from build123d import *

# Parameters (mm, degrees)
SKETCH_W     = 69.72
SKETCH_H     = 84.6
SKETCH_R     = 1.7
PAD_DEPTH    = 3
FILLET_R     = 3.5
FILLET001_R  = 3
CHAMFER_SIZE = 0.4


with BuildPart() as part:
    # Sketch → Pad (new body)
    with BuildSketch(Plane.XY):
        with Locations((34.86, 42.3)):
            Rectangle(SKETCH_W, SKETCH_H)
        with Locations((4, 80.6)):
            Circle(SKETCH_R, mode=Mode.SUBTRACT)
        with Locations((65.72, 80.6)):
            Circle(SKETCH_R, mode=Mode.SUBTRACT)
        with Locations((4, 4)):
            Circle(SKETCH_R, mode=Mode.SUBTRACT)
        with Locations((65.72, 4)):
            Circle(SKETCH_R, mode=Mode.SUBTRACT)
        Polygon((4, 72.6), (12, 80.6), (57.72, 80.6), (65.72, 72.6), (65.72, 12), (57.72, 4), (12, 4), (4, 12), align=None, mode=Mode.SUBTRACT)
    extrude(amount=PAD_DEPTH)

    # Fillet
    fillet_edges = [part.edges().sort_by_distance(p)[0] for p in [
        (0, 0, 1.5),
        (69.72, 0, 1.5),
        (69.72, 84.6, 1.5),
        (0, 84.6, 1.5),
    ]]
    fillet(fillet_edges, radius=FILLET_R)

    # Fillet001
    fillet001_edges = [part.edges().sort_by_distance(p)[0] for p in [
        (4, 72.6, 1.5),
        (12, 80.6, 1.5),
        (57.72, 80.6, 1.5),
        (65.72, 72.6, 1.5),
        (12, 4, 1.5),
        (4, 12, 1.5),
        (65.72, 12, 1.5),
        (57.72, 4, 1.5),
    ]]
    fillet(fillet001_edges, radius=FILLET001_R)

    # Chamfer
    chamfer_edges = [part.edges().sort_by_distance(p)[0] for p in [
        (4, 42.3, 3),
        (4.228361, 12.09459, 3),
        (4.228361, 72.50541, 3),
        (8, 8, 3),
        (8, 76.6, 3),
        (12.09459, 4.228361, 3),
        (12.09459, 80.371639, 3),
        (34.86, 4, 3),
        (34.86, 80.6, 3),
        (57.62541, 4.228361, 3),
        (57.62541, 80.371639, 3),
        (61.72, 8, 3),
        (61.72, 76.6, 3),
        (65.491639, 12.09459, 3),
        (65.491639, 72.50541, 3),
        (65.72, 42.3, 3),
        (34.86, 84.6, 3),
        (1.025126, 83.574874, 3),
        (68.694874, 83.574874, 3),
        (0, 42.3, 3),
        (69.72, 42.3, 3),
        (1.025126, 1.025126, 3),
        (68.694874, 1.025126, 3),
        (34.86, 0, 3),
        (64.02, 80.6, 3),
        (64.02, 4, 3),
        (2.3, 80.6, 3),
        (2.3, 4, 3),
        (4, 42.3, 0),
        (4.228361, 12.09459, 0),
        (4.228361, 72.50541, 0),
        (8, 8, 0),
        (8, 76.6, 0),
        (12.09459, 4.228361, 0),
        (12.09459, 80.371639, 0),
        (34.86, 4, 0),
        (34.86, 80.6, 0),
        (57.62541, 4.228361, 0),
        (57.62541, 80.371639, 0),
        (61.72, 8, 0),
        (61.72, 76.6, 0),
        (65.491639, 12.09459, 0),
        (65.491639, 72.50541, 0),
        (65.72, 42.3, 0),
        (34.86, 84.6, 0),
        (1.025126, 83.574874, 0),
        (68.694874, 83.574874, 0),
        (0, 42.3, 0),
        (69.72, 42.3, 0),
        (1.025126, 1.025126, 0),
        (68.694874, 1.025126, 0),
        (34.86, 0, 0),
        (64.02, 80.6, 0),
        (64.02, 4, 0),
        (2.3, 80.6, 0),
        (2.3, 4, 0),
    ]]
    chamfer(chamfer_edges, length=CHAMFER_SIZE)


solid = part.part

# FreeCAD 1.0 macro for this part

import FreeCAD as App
import Part
import Sketcher
from FreeCAD import Vector
Q = App.Units.Quantity


def edges_at(feature, points):
    """Names of the edges that pass closest to the given points."""
    edges = feature.Shape.Edges
    near = lambda p: min(range(len(edges)), key=lambda i: edges[i].distToShape(Part.Vertex(*p))[0])
    return sorted({f"Edge{near(p) + 1}" for p in points})


def add_polygon(sketch, points):
    """Adds a closed chain of lines whose ends are joined by coincident constraints."""
    first, n = sketch.GeometryCount, len(points)
    for a, b in zip(points, points[1:] + points[:1]):
        sketch.addGeometry(Part.LineSegment(App.Vector(*a, 0), App.Vector(*b, 0)), False)
    for i in range(n):
        sketch.addConstraint(Sketcher.Constraint("Coincident", first + i, 2, first + (i + 1) % n, 1))

doc = App.newDocument("Part")
body = doc.addObject("PartDesign::Body", "Body")

# Sketch on XY plane
sketch1 = doc.addObject("Sketcher::SketchObject", "Sketch")
body.addObject(sketch1)
sketch1.AttachmentSupport = (doc.XY_Plane, [""])
sketch1.MapMode = "FlatFace"
add_polygon(sketch1, [(0, 84.6), (0, 0), (69.7, 0), (69.7, 84.6)])  # lines 0-3
sketch1.addGeometry(Part.Circle(Vector(4, 4, 0), Vector(0, 0, 1), 1.7), False)  # 4
sketch1.addGeometry(Part.Circle(Vector(65.7, 4, 0), Vector(0, 0, 1), 1.7), False)  # 5
sketch1.addGeometry(Part.Circle(Vector(4, 80.6, 0), Vector(0, 0, 1), 1.7), False)  # 6
add_polygon(sketch1, [(4, 12), (4, 72.6), (12, 80.6), (57.7, 80.6), (65.7, 72.6), (65.7, 12), (57.7, 4), (12, 4)])  # lines 7-14
sketch1.addGeometry(Part.Circle(Vector(65.7, 80.6, 0), Vector(0, 0, 1), 1.7), False)  # 15
sketch1.addConstraint(Sketcher.Constraint("Vertical", 0))
sketch1.addConstraint(Sketcher.Constraint("Horizontal", 1))
sketch1.addConstraint(Sketcher.Constraint("Vertical", 2))
sketch1.addConstraint(Sketcher.Constraint("Horizontal", 3))
sketch1.addConstraint(Sketcher.Constraint("Vertical", 7))
sketch1.addConstraint(Sketcher.Constraint("Horizontal", 9))
sketch1.addConstraint(Sketcher.Constraint("Vertical", 11))
sketch1.addConstraint(Sketcher.Constraint("Horizontal", 13))
sketch1.addConstraint(Sketcher.Constraint("Coincident", 0, 2, -1, 1))
sketch1.addConstraint(Sketcher.Constraint("Equal", 4, 5))
sketch1.addConstraint(Sketcher.Constraint("Equal", 5, 6))
sketch1.addConstraint(Sketcher.Constraint("Equal", 6, 15))
sketch1.addConstraint(Sketcher.Constraint("Perpendicular", 8, 10))
sketch1.addConstraint(Sketcher.Constraint("Perpendicular", 10, 12))
sketch1.addConstraint(Sketcher.Constraint("Perpendicular", 12, 14))
sketch1.addConstraint(Sketcher.Constraint("Horizontal", 4, 3, 5, 3))
sketch1.addConstraint(Sketcher.Constraint("Horizontal", 6, 3, 15, 3))
sketch1.addConstraint(Sketcher.Constraint("Horizontal", 15, 3, 8, 2))
sketch1.addConstraint(Sketcher.Constraint("Horizontal", 7, 2, 10, 2))
sketch1.addConstraint(Sketcher.Constraint("Horizontal", 5, 3, 12, 2))
sketch1.addConstraint(Sketcher.Constraint("Horizontal", 11, 2, 14, 2))
sketch1.addConstraint(Sketcher.Constraint("Vertical", 4, 3, 6, 3))
sketch1.addConstraint(Sketcher.Constraint("Vertical", 5, 3, 15, 3))
sketch1.addConstraint(Sketcher.Constraint("Vertical", 6, 3, 7, 2))
sketch1.addConstraint(Sketcher.Constraint("Vertical", 15, 3, 10, 2))
sketch1.addConstraint(Sketcher.Constraint("Vertical", 9, 2, 12, 2))
sketch1.addConstraint(Sketcher.Constraint("Vertical", 8, 2, 13, 2))
sketch1.addConstraint(Sketcher.Constraint("Diameter", 4, Q("3.4 mm")))
sketch1.addConstraint(Sketcher.Constraint("DistanceY", 0, 2, 0, 1, Q("84.6 mm")))
sketch1.addConstraint(Sketcher.Constraint("DistanceY", 7, 1, 7, 2, Q("60.6 mm")))
sketch1.addConstraint(Sketcher.Constraint("DistanceX", -1, 1, 4, 3, Q("4 mm")))
sketch1.addConstraint(Sketcher.Constraint("DistanceY", -1, 1, 4, 3, Q("4 mm")))
sketch1.addConstraint(Sketcher.Constraint("DistanceX", -1, 1, 8, 2, Q("12 mm")))
sketch1.addConstraint(Sketcher.Constraint("DistanceX", 5, 3, 1, 2, Q("4 mm")))
sketch1.addConstraint(Sketcher.Constraint("DistanceX", 1, 1, 1, 2, Q("69.72 mm")))
pad1 = doc.addObject("PartDesign::Pad", "Pad")
body.addObject(pad1)
pad1.Profile = sketch1
pad1.Length = 3
doc.recompute()

fillet = doc.addObject("PartDesign::Fillet", "Fillet")
body.addObject(fillet)
fillet.Base = (pad1, edges_at(pad1, [
    (0, 0, 1.5),
    (69.72, 0, 1.5),
    (69.72, 84.6, 1.5),
    (0, 84.6, 1.5),
]))
fillet.Radius = 3.5
doc.recompute()

fillet2 = doc.addObject("PartDesign::Fillet", "Fillet001")
body.addObject(fillet2)
fillet2.Base = (fillet, edges_at(fillet, [
    (4, 72.6, 1.5),
    (12, 80.6, 1.5),
    (57.72, 80.6, 1.5),
    (65.72, 72.6, 1.5),
    (12, 4, 1.5),
    (4, 12, 1.5),
    (65.72, 12, 1.5),
    (57.72, 4, 1.5),
]))
fillet2.Radius = 3
doc.recompute()

chamfer = doc.addObject("PartDesign::Chamfer", "Chamfer")
body.addObject(chamfer)
chamfer.Base = (fillet2, edges_at(fillet2, [
    (4, 42.3, 3),
    (4.228, 12.095, 3),
    (4.228, 72.505, 3),
    (8, 8, 3),
    (8, 76.6, 3),
    (12.095, 4.228, 3),
    (12.095, 80.372, 3),
    (34.86, 4, 3),
    (34.86, 80.6, 3),
    (57.625, 4.228, 3),
    (57.625, 80.372, 3),
    (61.72, 8, 3),
    (61.72, 76.6, 3),
    (65.492, 12.095, 3),
    (65.492, 72.505, 3),
    (65.72, 42.3, 3),
    (34.86, 84.6, 3),
    (1.025, 83.575, 3),
    (68.695, 83.575, 3),
    (0, 42.3, 3),
    (69.72, 42.3, 3),
    (1.025, 1.025, 3),
    (68.695, 1.025, 3),
    (34.86, 0, 3),
    (64.02, 80.6, 3),
    (64.02, 4, 3),
    (2.3, 80.6, 3),
    (2.3, 4, 3),
    (4, 42.3, 0),
    (4.228, 12.095, 0),
    (4.228, 72.505, 0),
    (8, 8, 0),
    (8, 76.6, 0),
    (12.095, 4.228, 0),
    (12.095, 80.372, 0),
    (34.86, 4, 0),
    (34.86, 80.6, 0),
    (57.625, 4.228, 0),
    (57.625, 80.372, 0),
    (61.72, 8, 0),
    (61.72, 76.6, 0),
    (65.492, 12.095, 0),
    (65.492, 72.505, 0),
    (65.72, 42.3, 0),
    (34.86, 84.6, 0),
    (1.025, 83.575, 0),
    (68.695, 83.575, 0),
    (0, 42.3, 0),
    (69.72, 42.3, 0),
    (1.025, 1.025, 0),
    (68.695, 1.025, 0),
    (34.86, 0, 0),
    (64.02, 80.6, 0),
    (64.02, 4, 0),
    (2.3, 80.6, 0),
    (2.3, 4, 0),
]))
chamfer.Size = 0.4

doc.recompute()
